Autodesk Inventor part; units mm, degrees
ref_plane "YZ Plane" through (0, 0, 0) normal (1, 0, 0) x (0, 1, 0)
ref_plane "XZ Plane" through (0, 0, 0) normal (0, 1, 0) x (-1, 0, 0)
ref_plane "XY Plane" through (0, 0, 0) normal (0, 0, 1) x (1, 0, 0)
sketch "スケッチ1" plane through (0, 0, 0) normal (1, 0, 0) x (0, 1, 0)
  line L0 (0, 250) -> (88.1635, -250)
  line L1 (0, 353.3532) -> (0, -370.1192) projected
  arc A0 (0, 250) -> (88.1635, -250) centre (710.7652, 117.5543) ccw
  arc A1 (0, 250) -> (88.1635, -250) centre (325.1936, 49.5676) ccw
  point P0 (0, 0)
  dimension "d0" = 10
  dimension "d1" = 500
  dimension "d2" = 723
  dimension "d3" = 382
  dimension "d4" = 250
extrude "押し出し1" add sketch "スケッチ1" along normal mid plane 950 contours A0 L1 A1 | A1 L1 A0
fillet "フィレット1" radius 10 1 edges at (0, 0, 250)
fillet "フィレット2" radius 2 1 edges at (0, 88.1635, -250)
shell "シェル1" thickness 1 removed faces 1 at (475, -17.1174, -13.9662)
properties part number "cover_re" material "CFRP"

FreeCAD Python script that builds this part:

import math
import FreeCAD as App
import Part
import Sketcher
from FreeCAD import Vector
Q = App.Units.Quantity


def edges_at(feature, points):
    """Names of the edges that pass closest to the given points."""
    edges = feature.Shape.Edges
    near = lambda p: min(range(len(edges)), key=lambda i: edges[i].distToShape(Part.Vertex(*p))[0])
    return sorted({f"Edge{near(p) + 1}" for p in points})


def faces_at(feature, points):
    """Names of the faces that lie closest to the given points."""
    faces = feature.Shape.Faces
    near = lambda p: min(range(len(faces)), key=lambda i: faces[i].distToShape(Part.Vertex(*p))[0])
    return sorted({f"Face{near(p) + 1}" for p in points})

doc = App.newDocument("Part")
body = doc.addObject("PartDesign::Body", "Body")

sketch1 = body.newObject("Sketcher::SketchObject", "Sketch")
sketch1.AttachmentSupport = (doc.getObject("YZ_Plane"), [""])
sketch1.MapMode = "FlatFace"
sketch1.addGeometry([
    Part.ArcOfCircle(Part.Circle(Vector(325, 50, 0), Vector(0, 0, 1), 382), math.radians(148), math.radians(232)),
    Part.ArcOfCircle(Part.Circle(Vector(711, 118, 0), Vector(0, 0, 1), 723), math.radians(169), math.radians(211)),
], False)
sketch1.addConstraint([
    Sketcher.Constraint("Coincident", 0, 1, 1, 1),
    Sketcher.Constraint("Coincident", 1, 2, 0, 2),
    Sketcher.Constraint("PointOnObject", 0, 1, -2),
    Sketcher.Constraint("Radius", 0, Q("382 mm")),
    Sketcher.Constraint("Radius", 1, Q("723 mm")),
    Sketcher.Constraint("DistanceY", -1, 1, 0, 1, Q("250 mm")),
    Sketcher.Constraint("DistanceY", 1, 2, -1, 1, Q("250 mm")),
    Sketcher.Constraint("DistanceX", -1, 1, 0, 3, Q("325.1936 mm")),
])
pad1 = body.newObject("PartDesign::Pad", "Pad")
pad1.Profile = sketch1
pad1.Length = 950
pad1.Midplane = True
doc.recompute()

fillet = body.newObject("PartDesign::Fillet", "Fillet")
fillet.Base = (pad1, edges_at(pad1, [(0, 0, 250)]))
fillet.Radius = 10
doc.recompute()

fillet2 = body.newObject("PartDesign::Fillet", "Fillet001")
fillet2.Base = (fillet, edges_at(fillet, [(0, 88.163, -250)]))
fillet2.Radius = 2
doc.recompute()

thickness = body.newObject("PartDesign::Thickness", "Thickness")
thickness.Base = (fillet2, faces_at(fillet2, [(475, -17.117, -13.966)]))
thickness.Value = 1
thickness.Reversed = True
thickness.Join = "Intersection"

doc.recompute()
